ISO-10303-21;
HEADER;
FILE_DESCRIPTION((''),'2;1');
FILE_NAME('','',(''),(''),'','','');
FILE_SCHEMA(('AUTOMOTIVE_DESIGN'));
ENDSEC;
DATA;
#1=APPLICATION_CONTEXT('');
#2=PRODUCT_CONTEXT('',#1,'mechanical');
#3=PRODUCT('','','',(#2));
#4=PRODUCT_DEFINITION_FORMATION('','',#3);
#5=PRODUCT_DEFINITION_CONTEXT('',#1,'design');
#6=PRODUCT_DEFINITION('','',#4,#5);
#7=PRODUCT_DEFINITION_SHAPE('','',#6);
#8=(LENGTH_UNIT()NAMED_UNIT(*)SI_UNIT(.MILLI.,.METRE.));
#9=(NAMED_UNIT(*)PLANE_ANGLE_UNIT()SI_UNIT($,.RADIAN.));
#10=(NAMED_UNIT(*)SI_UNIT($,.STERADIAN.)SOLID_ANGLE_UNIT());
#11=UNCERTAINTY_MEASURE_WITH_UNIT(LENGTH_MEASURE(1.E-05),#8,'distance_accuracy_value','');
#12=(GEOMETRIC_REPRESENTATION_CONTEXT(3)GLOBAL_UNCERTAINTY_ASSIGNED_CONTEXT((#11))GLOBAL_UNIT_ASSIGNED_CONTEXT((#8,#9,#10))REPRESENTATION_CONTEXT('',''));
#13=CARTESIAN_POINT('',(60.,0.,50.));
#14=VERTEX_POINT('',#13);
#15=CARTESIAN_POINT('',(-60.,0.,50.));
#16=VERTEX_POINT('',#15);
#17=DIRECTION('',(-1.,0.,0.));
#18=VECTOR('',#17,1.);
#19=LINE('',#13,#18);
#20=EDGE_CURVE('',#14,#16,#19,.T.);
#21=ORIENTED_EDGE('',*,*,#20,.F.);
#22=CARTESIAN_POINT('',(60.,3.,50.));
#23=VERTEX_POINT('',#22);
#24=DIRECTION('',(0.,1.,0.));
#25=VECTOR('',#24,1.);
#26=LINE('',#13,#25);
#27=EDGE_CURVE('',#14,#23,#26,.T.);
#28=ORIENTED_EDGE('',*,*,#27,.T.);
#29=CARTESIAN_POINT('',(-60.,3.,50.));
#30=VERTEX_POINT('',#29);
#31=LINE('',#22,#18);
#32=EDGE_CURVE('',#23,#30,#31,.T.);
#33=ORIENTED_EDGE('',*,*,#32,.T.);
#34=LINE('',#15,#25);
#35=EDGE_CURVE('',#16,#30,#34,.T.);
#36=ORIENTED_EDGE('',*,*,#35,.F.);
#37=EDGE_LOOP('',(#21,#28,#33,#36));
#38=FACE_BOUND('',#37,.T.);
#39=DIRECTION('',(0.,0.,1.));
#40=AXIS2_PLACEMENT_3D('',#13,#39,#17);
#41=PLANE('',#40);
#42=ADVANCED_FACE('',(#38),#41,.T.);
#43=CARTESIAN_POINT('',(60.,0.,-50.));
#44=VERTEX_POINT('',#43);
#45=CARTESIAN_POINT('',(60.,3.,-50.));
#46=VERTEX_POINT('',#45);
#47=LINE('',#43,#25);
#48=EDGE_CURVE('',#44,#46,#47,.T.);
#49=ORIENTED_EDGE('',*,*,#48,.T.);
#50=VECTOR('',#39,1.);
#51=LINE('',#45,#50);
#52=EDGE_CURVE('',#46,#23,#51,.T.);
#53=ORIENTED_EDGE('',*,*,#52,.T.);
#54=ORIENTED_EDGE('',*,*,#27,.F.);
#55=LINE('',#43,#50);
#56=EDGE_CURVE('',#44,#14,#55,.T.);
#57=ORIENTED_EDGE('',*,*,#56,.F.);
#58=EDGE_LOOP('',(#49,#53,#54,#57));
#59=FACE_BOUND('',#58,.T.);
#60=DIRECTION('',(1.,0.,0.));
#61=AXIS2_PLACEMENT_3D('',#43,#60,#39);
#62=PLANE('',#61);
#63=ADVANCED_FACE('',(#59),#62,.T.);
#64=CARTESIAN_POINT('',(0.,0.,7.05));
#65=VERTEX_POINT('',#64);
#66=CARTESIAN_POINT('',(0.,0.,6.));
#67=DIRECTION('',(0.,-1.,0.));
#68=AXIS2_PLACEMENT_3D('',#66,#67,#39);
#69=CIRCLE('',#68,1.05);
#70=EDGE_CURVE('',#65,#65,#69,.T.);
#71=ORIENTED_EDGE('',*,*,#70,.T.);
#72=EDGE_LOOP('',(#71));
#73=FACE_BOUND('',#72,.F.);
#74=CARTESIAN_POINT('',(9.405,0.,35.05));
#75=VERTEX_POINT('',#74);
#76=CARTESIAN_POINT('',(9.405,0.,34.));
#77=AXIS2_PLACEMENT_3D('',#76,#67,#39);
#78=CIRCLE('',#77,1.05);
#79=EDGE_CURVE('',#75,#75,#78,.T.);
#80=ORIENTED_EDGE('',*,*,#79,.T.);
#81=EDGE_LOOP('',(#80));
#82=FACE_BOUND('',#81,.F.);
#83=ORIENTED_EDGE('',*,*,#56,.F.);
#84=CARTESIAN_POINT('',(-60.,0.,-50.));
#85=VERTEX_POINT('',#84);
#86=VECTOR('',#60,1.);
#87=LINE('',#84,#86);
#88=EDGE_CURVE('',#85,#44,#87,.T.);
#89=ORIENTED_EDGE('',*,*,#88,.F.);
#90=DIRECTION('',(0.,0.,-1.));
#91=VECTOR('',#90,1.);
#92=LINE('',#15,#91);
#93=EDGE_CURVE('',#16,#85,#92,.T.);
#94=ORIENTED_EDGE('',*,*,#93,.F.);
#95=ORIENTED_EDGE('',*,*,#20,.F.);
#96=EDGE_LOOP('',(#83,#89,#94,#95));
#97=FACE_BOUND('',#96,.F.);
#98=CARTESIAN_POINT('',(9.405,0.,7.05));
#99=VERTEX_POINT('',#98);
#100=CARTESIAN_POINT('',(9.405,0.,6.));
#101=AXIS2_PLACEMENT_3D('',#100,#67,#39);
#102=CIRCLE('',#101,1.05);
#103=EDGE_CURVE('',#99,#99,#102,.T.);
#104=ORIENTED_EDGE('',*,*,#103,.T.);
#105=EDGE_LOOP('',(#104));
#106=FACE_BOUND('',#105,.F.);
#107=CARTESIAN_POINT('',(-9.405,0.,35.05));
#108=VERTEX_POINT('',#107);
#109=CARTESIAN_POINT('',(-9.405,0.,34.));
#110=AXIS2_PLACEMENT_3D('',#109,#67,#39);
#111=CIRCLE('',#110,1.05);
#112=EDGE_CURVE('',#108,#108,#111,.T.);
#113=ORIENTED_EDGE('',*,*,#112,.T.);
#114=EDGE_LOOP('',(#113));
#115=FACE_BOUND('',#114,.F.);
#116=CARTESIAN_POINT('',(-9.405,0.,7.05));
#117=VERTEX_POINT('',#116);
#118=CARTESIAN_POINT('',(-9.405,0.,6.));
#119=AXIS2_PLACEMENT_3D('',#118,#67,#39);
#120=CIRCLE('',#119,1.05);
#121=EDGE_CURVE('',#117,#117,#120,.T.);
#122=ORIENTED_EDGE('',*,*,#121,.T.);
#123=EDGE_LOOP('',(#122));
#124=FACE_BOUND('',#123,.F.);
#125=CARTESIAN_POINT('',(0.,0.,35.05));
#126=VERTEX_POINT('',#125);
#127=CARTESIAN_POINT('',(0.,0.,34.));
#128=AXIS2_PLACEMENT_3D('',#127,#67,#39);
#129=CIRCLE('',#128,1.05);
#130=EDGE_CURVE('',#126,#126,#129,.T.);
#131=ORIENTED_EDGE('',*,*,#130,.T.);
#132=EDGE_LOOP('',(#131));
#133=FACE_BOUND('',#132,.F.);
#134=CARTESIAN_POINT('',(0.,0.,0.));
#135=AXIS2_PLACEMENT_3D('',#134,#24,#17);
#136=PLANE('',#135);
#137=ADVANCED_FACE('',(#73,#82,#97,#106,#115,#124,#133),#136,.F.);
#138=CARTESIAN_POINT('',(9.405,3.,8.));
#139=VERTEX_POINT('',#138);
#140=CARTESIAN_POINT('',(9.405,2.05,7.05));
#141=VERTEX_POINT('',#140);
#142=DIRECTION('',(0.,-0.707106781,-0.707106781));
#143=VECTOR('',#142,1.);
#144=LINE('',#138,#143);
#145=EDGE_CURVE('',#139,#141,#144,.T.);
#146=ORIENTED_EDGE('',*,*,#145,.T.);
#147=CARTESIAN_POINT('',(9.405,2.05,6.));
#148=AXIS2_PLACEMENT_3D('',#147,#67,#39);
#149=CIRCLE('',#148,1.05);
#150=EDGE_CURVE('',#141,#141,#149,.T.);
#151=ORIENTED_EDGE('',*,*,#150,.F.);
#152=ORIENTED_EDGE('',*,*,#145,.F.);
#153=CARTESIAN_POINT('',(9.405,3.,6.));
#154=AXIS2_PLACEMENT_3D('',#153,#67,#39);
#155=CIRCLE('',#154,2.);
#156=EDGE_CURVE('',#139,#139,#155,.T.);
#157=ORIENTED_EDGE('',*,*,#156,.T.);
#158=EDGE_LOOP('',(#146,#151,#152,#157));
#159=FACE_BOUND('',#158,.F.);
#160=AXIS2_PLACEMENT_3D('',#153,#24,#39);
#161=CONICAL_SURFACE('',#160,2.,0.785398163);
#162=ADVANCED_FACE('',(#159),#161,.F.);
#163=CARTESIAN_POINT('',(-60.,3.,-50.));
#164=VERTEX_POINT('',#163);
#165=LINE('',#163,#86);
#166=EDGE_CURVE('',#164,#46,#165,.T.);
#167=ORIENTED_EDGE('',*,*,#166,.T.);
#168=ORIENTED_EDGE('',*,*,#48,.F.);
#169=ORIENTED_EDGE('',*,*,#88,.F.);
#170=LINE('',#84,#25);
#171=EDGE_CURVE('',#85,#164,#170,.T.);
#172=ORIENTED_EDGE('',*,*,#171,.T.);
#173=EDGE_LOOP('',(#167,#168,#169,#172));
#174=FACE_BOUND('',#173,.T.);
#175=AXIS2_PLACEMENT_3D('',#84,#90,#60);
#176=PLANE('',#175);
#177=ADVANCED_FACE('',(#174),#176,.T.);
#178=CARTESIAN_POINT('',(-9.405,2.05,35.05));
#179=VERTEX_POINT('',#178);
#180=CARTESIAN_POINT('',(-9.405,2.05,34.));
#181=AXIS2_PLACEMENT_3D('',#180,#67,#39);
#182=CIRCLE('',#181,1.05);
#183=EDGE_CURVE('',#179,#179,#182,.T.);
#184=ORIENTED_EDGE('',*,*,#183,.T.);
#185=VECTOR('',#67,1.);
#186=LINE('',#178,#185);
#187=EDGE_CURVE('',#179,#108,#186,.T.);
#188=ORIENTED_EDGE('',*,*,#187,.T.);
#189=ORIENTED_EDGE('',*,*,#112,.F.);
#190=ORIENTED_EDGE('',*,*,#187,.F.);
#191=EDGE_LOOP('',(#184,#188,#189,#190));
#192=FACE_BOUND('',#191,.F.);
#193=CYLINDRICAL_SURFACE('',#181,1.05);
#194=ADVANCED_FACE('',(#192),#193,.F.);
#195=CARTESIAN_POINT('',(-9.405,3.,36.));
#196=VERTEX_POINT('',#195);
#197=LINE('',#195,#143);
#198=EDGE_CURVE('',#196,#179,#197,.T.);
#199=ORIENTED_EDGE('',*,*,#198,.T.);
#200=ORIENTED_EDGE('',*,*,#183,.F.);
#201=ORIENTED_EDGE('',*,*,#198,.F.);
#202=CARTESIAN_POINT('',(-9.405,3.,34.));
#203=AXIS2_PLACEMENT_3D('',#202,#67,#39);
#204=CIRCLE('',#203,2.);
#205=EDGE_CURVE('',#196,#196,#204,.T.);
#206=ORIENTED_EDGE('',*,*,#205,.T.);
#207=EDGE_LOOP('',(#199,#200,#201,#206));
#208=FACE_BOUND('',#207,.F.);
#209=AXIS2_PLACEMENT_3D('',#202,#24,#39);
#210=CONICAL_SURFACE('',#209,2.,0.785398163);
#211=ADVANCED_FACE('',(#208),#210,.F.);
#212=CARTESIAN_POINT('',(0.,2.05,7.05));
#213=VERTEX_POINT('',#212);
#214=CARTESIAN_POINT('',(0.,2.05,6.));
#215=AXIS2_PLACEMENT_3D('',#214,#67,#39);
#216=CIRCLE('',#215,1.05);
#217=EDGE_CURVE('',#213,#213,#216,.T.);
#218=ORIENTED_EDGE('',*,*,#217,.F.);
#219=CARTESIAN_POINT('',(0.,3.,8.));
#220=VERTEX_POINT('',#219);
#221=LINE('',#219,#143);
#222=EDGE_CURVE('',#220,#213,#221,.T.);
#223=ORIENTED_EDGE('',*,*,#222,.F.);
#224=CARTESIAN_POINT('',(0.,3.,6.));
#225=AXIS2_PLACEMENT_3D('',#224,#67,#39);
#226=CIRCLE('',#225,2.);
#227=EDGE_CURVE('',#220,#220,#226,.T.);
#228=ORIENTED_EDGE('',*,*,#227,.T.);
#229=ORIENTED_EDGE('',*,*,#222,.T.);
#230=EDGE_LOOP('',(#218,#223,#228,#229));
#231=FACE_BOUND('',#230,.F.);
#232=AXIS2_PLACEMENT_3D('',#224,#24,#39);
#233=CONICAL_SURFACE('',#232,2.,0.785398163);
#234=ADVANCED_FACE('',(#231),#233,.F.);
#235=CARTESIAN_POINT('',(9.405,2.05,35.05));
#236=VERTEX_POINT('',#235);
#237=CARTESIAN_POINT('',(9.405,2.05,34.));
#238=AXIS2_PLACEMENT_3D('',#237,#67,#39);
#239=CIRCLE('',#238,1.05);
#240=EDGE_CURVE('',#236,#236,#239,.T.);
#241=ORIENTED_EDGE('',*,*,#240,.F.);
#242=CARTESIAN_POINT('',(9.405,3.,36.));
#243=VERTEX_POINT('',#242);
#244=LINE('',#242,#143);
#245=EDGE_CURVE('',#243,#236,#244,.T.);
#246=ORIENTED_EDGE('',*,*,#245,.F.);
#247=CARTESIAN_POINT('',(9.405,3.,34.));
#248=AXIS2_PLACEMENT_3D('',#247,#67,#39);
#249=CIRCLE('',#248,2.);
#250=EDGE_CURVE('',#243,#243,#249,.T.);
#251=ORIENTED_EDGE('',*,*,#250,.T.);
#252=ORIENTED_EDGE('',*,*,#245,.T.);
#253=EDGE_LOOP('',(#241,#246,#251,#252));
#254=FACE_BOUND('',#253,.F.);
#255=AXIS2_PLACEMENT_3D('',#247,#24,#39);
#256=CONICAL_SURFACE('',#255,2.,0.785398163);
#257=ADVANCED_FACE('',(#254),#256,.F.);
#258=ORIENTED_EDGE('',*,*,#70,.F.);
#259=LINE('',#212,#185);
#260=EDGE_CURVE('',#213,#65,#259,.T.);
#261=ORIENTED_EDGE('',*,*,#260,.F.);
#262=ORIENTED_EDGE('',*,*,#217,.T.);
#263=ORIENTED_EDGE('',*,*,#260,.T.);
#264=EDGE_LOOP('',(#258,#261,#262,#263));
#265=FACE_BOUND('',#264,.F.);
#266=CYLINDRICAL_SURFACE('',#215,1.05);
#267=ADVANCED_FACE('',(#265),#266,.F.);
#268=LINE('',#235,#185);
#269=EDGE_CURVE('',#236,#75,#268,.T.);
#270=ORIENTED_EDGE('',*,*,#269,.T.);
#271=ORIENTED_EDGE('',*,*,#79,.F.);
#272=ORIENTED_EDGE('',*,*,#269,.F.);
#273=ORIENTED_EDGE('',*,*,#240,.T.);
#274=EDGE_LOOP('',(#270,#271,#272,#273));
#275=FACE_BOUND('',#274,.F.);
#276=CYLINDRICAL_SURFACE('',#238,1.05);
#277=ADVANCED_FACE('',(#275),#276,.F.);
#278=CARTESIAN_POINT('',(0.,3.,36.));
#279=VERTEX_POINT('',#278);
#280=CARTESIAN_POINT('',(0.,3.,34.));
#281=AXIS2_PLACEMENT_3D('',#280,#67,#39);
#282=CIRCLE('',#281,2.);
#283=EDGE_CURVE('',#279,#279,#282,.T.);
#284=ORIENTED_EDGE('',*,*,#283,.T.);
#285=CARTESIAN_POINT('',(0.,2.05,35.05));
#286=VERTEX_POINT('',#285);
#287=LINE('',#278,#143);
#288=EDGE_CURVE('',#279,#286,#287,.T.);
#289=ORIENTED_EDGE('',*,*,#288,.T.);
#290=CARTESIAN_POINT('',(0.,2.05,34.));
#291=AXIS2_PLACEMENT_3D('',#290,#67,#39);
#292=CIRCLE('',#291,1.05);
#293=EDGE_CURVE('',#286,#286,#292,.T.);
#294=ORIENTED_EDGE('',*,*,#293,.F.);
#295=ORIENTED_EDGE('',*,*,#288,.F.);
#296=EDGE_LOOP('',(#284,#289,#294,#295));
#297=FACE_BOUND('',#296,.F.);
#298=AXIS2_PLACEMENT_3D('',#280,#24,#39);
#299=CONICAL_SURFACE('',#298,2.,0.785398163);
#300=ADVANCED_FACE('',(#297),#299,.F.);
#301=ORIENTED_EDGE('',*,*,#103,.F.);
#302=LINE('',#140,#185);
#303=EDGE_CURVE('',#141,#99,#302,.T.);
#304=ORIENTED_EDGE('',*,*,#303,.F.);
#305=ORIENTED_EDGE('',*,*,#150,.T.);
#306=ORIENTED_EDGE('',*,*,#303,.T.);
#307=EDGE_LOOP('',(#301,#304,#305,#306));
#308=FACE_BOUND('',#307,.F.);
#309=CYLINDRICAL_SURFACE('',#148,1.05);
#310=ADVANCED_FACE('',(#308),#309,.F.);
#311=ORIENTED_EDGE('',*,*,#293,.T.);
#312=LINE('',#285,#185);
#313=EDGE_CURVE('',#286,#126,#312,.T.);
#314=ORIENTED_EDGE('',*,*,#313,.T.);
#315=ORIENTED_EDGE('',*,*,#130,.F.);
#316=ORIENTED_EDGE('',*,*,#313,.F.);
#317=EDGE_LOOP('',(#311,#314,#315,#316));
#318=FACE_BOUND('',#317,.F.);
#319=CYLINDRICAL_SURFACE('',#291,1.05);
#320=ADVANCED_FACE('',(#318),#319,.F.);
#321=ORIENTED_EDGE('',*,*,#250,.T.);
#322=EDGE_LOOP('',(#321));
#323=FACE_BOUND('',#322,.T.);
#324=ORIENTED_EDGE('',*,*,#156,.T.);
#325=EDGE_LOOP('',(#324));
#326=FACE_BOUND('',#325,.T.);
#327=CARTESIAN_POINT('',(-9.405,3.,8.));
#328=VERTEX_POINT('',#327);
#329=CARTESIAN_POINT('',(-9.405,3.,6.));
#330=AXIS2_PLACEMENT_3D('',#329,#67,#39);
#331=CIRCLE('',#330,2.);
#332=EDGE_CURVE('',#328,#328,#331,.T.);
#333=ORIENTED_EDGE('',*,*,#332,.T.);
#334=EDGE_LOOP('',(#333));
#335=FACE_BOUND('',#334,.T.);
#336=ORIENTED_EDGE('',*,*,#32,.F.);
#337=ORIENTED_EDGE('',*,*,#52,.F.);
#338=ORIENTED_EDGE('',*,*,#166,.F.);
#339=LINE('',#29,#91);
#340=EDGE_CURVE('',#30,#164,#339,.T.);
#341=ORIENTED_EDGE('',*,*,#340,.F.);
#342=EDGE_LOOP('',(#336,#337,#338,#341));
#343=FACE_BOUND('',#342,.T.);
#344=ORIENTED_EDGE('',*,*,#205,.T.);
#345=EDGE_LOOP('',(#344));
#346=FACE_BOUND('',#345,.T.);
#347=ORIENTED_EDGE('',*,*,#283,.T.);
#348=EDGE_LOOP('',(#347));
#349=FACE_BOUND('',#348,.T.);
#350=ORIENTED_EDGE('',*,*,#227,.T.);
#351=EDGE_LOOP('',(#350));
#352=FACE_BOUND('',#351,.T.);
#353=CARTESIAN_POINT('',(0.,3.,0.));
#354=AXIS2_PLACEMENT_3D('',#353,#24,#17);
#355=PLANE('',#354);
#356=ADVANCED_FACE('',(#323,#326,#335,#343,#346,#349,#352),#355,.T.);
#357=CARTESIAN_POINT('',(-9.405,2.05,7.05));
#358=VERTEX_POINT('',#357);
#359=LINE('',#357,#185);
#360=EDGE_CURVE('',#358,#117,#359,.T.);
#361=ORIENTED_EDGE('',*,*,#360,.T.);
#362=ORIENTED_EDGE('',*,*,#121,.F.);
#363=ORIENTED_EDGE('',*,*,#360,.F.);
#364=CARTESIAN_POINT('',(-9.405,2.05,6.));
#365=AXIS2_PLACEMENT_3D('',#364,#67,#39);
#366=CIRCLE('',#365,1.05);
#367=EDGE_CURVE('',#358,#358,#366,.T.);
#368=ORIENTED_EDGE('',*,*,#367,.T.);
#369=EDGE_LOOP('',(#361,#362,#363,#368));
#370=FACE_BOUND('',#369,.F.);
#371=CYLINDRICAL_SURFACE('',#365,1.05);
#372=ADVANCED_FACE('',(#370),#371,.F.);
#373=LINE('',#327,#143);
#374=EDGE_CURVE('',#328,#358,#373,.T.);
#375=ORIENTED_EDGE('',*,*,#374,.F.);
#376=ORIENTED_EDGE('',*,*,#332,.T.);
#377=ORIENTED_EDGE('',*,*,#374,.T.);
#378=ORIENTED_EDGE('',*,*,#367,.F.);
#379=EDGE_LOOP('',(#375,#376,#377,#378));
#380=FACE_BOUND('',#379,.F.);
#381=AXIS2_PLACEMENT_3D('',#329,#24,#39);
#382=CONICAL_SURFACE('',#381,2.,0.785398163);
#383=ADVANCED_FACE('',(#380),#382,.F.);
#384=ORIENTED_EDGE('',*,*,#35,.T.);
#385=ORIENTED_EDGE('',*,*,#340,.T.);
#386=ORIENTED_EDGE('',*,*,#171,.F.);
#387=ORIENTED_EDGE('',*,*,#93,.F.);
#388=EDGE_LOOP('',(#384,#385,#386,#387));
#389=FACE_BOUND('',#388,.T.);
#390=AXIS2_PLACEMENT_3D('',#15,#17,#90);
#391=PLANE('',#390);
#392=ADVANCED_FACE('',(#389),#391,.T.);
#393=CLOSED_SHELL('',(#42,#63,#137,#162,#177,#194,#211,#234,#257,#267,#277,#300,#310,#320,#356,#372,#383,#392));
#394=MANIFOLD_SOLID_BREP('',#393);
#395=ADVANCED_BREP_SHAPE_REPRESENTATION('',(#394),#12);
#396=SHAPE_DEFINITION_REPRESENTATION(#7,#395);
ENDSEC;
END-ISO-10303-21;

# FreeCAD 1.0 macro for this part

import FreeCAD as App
import Part
import Sketcher


def add_polygon(sketch, points):
    """Adds a closed chain of lines whose ends are joined by coincident constraints."""
    first, n = sketch.GeometryCount, len(points)
    for a, b in zip(points, points[1:] + points[:1]):
        sketch.addGeometry(Part.LineSegment(App.Vector(*a, 0), App.Vector(*b, 0)), False)
    for i in range(n):
        sketch.addConstraint(Sketcher.Constraint("Coincident", first + i, 2, first + (i + 1) % n, 1))

doc = App.newDocument("Part")
body = doc.addObject("PartDesign::Body", "Body")

# Sketch on XZ plane
sketch1 = doc.addObject("Sketcher::SketchObject", "Sketch")
body.addObject(sketch1)
sketch1.AttachmentSupport = (doc.XZ_Plane, [""])
sketch1.MapMode = "FlatFace"
add_polygon(sketch1, [(60, -50), (-60, -50), (-60, 50), (60, 50)])  # lines 0-3
sketch1.addConstraint([
    Sketcher.Constraint("Horizontal", 0),
    Sketcher.Constraint("Vertical", 1),
    Sketcher.Constraint("Horizontal", 2),
    Sketcher.Constraint("Vertical", 3),
    Sketcher.Constraint("Symmetric", 0, 2, 2, 2, -1, 1),
    Sketcher.Constraint("DistanceX", 0, 2, 0, 1, 120.0),
    Sketcher.Constraint("DistanceY", 1, 1, 1, 2, 100.0),
])
pad1 = doc.addObject("PartDesign::Pad", "Pad")
body.addObject(pad1)
pad1.Profile = sketch1
pad1.Length = 3
pad1.Reversed = True

# Sketch on XZ plane
sketch2 = doc.addObject("Sketcher::SketchObject", "Sketch001")
body.addObject(sketch2)
sketch2.AttachmentSupport = (doc.XZ_Plane, [""])
sketch2.MapMode = "FlatFace"
sketch2.AttachmentOffset = App.Placement(App.Vector(0, 0, -3), App.Rotation())
sketch2.addGeometry([
    Part.Circle(App.Vector(-9.405, 6, 0), App.Vector(0, 0, 1), 1.05),  # 0
    Part.Circle(App.Vector(0, 6, 0), App.Vector(0, 0, 1), 1.05),  # 1
    Part.Circle(App.Vector(9.405, 6, 0), App.Vector(0, 0, 1), 1.05),  # 2
    Part.Circle(App.Vector(9.405, 34, 0), App.Vector(0, 0, 1), 1.05),  # 3
    Part.Circle(App.Vector(0, 34, 0), App.Vector(0, 0, 1), 1.05),  # 4
    Part.Circle(App.Vector(-9.405, 34, 0), App.Vector(0, 0, 1), 1.05),  # 5
], False)
sketch2.addConstraint([
    Sketcher.Constraint("Equal", 0, 1),
    Sketcher.Constraint("Equal", 1, 2),
    Sketcher.Constraint("Equal", 2, 3),
    Sketcher.Constraint("Equal", 3, 4),
    Sketcher.Constraint("Equal", 4, 5),
    Sketcher.Constraint("Symmetric", 0, 3, 2, 3, -2),
    Sketcher.Constraint("Symmetric", 3, 3, 5, 3, -2),
    Sketcher.Constraint("PointOnObject", 1, 3, -2),
    Sketcher.Constraint("PointOnObject", 4, 3, -2),
    Sketcher.Constraint("Horizontal", 0, 3, 1, 3),
    Sketcher.Constraint("Horizontal", 3, 3, 4, 3),
    Sketcher.Constraint("Vertical", 2, 3, 3, 3),
    Sketcher.Constraint("Diameter", 0, 2.1),
    Sketcher.Constraint("DistanceY", -1, 1, 0, 3, 6.0),
    Sketcher.Constraint("DistanceY", -1, 1, 3, 3, 34.0),
    Sketcher.Constraint("DistanceX", 0, 3, 2, 3, 18.81),
])
doc.recompute()
hole = doc.addObject("PartDesign::Hole", "Hole")
body.addObject(hole)
hole.Profile = sketch2
hole.ThreadType = "None"
hole.Diameter = 2.1
hole.DepthType = "Dimension"
hole.Depth = 3
hole.DrillPoint = "Flat"
hole.HoleCutType = "Countersink"
hole.HoleCutDiameter = 4
hole.HoleCutCountersinkAngle = 90
hole.Reversed = True

doc.recompute()
